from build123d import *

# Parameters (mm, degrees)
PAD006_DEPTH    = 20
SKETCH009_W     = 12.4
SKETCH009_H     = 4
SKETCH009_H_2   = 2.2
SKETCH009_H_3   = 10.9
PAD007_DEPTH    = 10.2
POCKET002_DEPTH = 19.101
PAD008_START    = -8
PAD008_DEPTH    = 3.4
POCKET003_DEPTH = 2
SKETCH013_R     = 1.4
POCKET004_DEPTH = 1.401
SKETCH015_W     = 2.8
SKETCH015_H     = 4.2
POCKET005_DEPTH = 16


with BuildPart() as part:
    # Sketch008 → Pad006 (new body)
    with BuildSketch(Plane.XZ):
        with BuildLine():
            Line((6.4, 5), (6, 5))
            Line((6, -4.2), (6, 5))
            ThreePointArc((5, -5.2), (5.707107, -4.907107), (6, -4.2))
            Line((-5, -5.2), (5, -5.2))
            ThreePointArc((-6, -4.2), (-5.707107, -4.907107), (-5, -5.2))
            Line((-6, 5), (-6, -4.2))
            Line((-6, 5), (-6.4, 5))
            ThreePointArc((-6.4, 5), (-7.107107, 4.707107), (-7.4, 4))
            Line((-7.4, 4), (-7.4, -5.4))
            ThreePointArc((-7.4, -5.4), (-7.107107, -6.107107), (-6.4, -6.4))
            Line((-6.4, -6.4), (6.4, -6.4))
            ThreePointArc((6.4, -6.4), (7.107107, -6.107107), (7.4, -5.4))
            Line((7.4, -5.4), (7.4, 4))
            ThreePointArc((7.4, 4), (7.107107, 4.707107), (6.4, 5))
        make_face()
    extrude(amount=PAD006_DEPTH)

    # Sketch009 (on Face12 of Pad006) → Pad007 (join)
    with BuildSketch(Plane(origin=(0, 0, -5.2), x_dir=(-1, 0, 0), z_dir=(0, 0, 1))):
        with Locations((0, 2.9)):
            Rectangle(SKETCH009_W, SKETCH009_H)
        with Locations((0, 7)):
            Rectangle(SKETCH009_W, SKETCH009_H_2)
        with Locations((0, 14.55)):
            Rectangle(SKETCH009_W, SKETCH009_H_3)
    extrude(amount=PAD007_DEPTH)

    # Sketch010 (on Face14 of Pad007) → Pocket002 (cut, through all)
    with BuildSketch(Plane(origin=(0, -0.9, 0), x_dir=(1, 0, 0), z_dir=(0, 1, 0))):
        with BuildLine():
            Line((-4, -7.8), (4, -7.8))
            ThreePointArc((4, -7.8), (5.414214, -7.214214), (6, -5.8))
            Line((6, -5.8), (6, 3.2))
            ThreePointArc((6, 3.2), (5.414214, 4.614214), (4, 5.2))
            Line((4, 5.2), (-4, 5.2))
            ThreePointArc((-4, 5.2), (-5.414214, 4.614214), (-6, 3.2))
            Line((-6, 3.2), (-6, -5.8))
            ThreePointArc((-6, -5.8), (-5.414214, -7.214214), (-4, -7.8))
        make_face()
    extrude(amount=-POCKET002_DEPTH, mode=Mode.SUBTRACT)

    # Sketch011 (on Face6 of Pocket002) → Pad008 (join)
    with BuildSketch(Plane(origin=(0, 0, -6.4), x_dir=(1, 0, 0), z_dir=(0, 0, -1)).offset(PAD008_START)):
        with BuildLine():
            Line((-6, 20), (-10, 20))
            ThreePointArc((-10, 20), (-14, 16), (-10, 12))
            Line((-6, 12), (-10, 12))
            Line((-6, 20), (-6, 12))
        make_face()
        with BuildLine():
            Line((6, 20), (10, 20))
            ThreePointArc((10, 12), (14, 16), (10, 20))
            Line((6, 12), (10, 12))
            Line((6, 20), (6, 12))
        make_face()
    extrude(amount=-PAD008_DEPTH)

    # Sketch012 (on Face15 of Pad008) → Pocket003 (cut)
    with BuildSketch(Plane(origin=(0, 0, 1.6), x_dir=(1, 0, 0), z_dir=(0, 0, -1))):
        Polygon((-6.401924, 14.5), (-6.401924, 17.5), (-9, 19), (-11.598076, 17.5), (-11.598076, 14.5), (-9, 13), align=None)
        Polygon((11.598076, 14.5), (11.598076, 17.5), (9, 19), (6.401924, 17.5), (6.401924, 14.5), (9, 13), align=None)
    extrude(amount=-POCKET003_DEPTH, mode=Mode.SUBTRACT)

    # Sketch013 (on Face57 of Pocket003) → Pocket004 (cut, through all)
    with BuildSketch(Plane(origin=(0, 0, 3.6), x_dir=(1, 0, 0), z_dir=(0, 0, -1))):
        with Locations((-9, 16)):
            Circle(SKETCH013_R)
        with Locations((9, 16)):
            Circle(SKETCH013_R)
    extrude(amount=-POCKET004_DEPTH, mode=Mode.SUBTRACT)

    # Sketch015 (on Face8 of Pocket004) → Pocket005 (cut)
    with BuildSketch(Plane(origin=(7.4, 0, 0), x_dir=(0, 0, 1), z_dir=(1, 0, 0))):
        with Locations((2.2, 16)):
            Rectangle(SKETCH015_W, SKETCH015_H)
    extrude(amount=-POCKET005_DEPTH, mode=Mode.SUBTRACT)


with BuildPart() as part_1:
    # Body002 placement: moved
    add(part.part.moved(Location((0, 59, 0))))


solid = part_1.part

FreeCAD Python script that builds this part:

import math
import FreeCAD as App
import Part
import Sketcher
Q = App.Units.Quantity

doc = App.newDocument("Part")
body = doc.addObject("PartDesign::Body", "Body")

sketch1 = body.newObject("Sketcher::SketchObject", "Sketch")
sketch1.AttachmentSupport = (doc.getObject("XZ_Plane"), [""])
sketch1.MapMode = "FlatFace"
sketch1.addGeometry(Part.LineSegment(App.Vector(6.4, 5, 0), App.Vector(6, 5, 0)), False)
sketch1.addGeometry(Part.LineSegment(App.Vector(6, 5, 0), App.Vector(6, -4.2, 0)), False)
sketch1.addGeometry(Part.ArcOfCircle(Part.Circle(App.Vector(5.000001, -4.200001, 0), App.Vector(0, 0, 1), 0.999999), math.radians(-90.000043), math.radians(0.000043)), False)
sketch1.addGeometry(Part.LineSegment(App.Vector(5, -5.2, 0), App.Vector(-5, -5.2, 0)), False)
sketch1.addGeometry(Part.ArcOfCircle(Part.Circle(App.Vector(-5.000001, -4.200001, 0), App.Vector(0, 0, 1), 0.999999), math.radians(179.999957), math.radians(270.000043)), False)
sketch1.addGeometry(Part.LineSegment(App.Vector(-6, -4.2, 0), App.Vector(-6, 5, 0)), False)
sketch1.addGeometry(Part.LineSegment(App.Vector(-6, 5, 0), App.Vector(-6.4, 5, 0)), False)
sketch1.addGeometry(Part.ArcOfCircle(Part.Circle(App.Vector(-6.400001, 4.000001, 0), App.Vector(0, 0, 1), 0.999999), math.radians(89.999957), math.radians(180.000043)), False)
sketch1.addGeometry(Part.LineSegment(App.Vector(-7.4, 4, 0), App.Vector(-7.4, -5.4, 0)), False)
sketch1.addGeometry(Part.ArcOfCircle(Part.Circle(App.Vector(-6.400001, -5.400001, 0), App.Vector(0, 0, 1), 0.999999), math.radians(179.999957), math.radians(270.000043)), False)
sketch1.addGeometry(Part.LineSegment(App.Vector(-6.4, -6.4, 0), App.Vector(6.4, -6.4, 0)), False)
sketch1.addGeometry(Part.ArcOfCircle(Part.Circle(App.Vector(6.400001, -5.400001, 0), App.Vector(0, 0, 1), 0.999999), math.radians(-90.000043), math.radians(0.000043)), False)
sketch1.addGeometry(Part.LineSegment(App.Vector(7.4, -5.4, 0), App.Vector(7.4, 4, 0)), False)
sketch1.addGeometry(Part.ArcOfCircle(Part.Circle(App.Vector(6.400001, 4.000001, 0), App.Vector(0, 0, 1), 0.999999), math.radians(-0.000043), math.radians(90.000043)), False)
sketch1.addConstraint(Sketcher.Constraint("Coincident", 0, 2, 1, 1))
sketch1.addConstraint(Sketcher.Constraint("Tangent", 1, 2, 2, 2))
sketch1.addConstraint(Sketcher.Constraint("Tangent", 2, 1, 3, 1))
sketch1.addConstraint(Sketcher.Constraint("Tangent", 3, 2, 4, 2))
sketch1.addConstraint(Sketcher.Constraint("Tangent", 4, 1, 5, 1))
sketch1.addConstraint(Sketcher.Constraint("Coincident", 5, 2, 6, 1))
sketch1.addConstraint(Sketcher.Constraint("Tangent", 6, 2, 7, 1))
sketch1.addConstraint(Sketcher.Constraint("Tangent", 7, 2, 8, 1))
sketch1.addConstraint(Sketcher.Constraint("Tangent", 8, 2, 9, 1))
sketch1.addConstraint(Sketcher.Constraint("Tangent", 9, 2, 10, 1))
sketch1.addConstraint(Sketcher.Constraint("Tangent", 10, 2, 11, 1))
sketch1.addConstraint(Sketcher.Constraint("Tangent", 11, 2, 12, 1))
sketch1.addConstraint(Sketcher.Constraint("Tangent", 12, 2, 13, 1))
sketch1.addConstraint(Sketcher.Constraint("Tangent", 13, 2, 0, 1))
sketch1.addConstraint(Sketcher.Constraint("Horizontal", 0))
sketch1.addConstraint(Sketcher.Constraint("Vertical", 1))
sketch1.addConstraint(Sketcher.Constraint("Horizontal", 3))
sketch1.addConstraint(Sketcher.Constraint("Vertical", 5))
sketch1.addConstraint(Sketcher.Constraint("Horizontal", 6))
sketch1.addConstraint(Sketcher.Constraint("Vertical", 8))
sketch1.addConstraint(Sketcher.Constraint("Horizontal", 10))
sketch1.addConstraint(Sketcher.Constraint("Vertical", 12))
sketch1.addConstraint(Sketcher.Constraint("Equal", 2, 4))
sketch1.addConstraint(Sketcher.Constraint("Equal", 4, 7))
sketch1.addConstraint(Sketcher.Constraint("Equal", 7, 9))
sketch1.addConstraint(Sketcher.Constraint("Equal", 9, 11))
sketch1.addConstraint(Sketcher.Constraint("Equal", 11, 13))
sketch1.addConstraint(Sketcher.Constraint("Symmetric", 7, 3, 13, 3, -2))
sketch1.addConstraint(Sketcher.Constraint("Equal", 0, 6))
sketch1.addConstraint(Sketcher.Constraint("Radius", 2, Q("0.999999 mm")))
sketch1.addConstraint(Sketcher.Constraint("DistanceX", 3, 2, 3, 1, Q("10 mm")))
sketch1.addConstraint(Sketcher.Constraint("DistanceX", 0, 2, 0, 1, Q("0.4 mm")))
sketch1.addConstraint(Sketcher.Constraint("DistanceY", 1, 2, 1, 1, Q("9.2 mm")))
sketch1.addConstraint(Sketcher.Constraint("DistanceY", 8, 2, 8, 1, Q("9.4 mm")))
sketch1.addConstraint(Sketcher.Constraint("DistanceY", -1, 1, 7, 3, Q("4.000001 mm")))
pad1 = body.newObject("PartDesign::Pad", "Pad")
pad1.Profile = sketch1
pad1.Length = 20

sketch2 = body.newObject("Sketcher::SketchObject", "Sketch001")
sketch2.AttachmentSupport = (doc.getObject("XY_Plane"), [""])
sketch2.MapMode = "FlatFace"
sketch2.AttachmentOffset = App.Placement(App.Vector(0, 0, -5.2), App.Rotation())
sketch2.addGeometry(Part.LineSegment(App.Vector(6.2, -4.9, 0), App.Vector(6.2, -0.9, 0)), False)
sketch2.addGeometry(Part.LineSegment(App.Vector(6.2, -0.9, 0), App.Vector(-6.2, -0.9, 0)), False)
sketch2.addGeometry(Part.LineSegment(App.Vector(-6.2, -0.9, 0), App.Vector(-6.2, -4.9, 0)), False)
sketch2.addGeometry(Part.LineSegment(App.Vector(-6.2, -4.9, 0), App.Vector(6.2, -4.9, 0)), False)
sketch2.addGeometry(Part.LineSegment(App.Vector(6.2, -8.1, 0), App.Vector(6.2, -5.9, 0)), False)
sketch2.addGeometry(Part.LineSegment(App.Vector(6.2, -5.9, 0), App.Vector(-6.2, -5.9, 0)), False)
sketch2.addGeometry(Part.LineSegment(App.Vector(-6.2, -5.9, 0), App.Vector(-6.2, -8.1, 0)), False)
sketch2.addGeometry(Part.LineSegment(App.Vector(-6.2, -8.1, 0), App.Vector(6.2, -8.1, 0)), False)
sketch2.addGeometry(Part.LineSegment(App.Vector(6.2, -20, 0), App.Vector(6.2, -9.1, 0)), False)
sketch2.addGeometry(Part.LineSegment(App.Vector(6.2, -9.1, 0), App.Vector(-6.2, -9.1, 0)), False)
sketch2.addGeometry(Part.LineSegment(App.Vector(-6.2, -9.1, 0), App.Vector(-6.2, -20, 0)), False)
sketch2.addGeometry(Part.LineSegment(App.Vector(-6.2, -20, 0), App.Vector(6.2, -20, 0)), False)
sketch2.addConstraint(Sketcher.Constraint("Coincident", 0, 2, 1, 1))
sketch2.addConstraint(Sketcher.Constraint("Coincident", 1, 2, 2, 1))
sketch2.addConstraint(Sketcher.Constraint("Coincident", 2, 2, 3, 1))
sketch2.addConstraint(Sketcher.Constraint("Coincident", 3, 2, 0, 1))
sketch2.addConstraint(Sketcher.Constraint("Coincident", 4, 2, 5, 1))
sketch2.addConstraint(Sketcher.Constraint("Coincident", 5, 2, 6, 1))
sketch2.addConstraint(Sketcher.Constraint("Coincident", 6, 2, 7, 1))
sketch2.addConstraint(Sketcher.Constraint("Coincident", 7, 2, 4, 1))
sketch2.addConstraint(Sketcher.Constraint("Coincident", 8, 2, 9, 1))
sketch2.addConstraint(Sketcher.Constraint("Coincident", 9, 2, 10, 1))
sketch2.addConstraint(Sketcher.Constraint("Coincident", 10, 2, 11, 1))
sketch2.addConstraint(Sketcher.Constraint("Coincident", 11, 2, 8, 1))
sketch2.addConstraint(Sketcher.Constraint("Vertical", 0))
sketch2.addConstraint(Sketcher.Constraint("Horizontal", 1))
sketch2.addConstraint(Sketcher.Constraint("Vertical", 2))
sketch2.addConstraint(Sketcher.Constraint("Horizontal", 3))
sketch2.addConstraint(Sketcher.Constraint("Vertical", 4))
sketch2.addConstraint(Sketcher.Constraint("Horizontal", 5))
sketch2.addConstraint(Sketcher.Constraint("Vertical", 6))
sketch2.addConstraint(Sketcher.Constraint("Horizontal", 7))
sketch2.addConstraint(Sketcher.Constraint("Vertical", 8))
sketch2.addConstraint(Sketcher.Constraint("Horizontal", 9))
sketch2.addConstraint(Sketcher.Constraint("Vertical", 10))
sketch2.addConstraint(Sketcher.Constraint("Horizontal", 11))
sketch2.addConstraint(Sketcher.Constraint("Vertical", 3, 2, 4, 2))
sketch2.addConstraint(Sketcher.Constraint("Vertical", 2, 2, 5, 2))
sketch2.addConstraint(Sketcher.Constraint("Vertical", 7, 2, 8, 2))
sketch2.addConstraint(Sketcher.Constraint("Vertical", 6, 2, 9, 2))
sketch2.addConstraint(Sketcher.Constraint("DistanceY", 0, 1, 0, 2, Q("4 mm")))
sketch2.addConstraint(Sketcher.Constraint("DistanceX", 1, 2, 1, 1, Q("12.4 mm")))
sketch2.addConstraint(Sketcher.Constraint("DistanceY", 4, 1, 4, 2, Q("2.2 mm")))
sketch2.addConstraint(Sketcher.Constraint("DistanceY", 8, 1, 8, 2, Q("10.9 mm")))
sketch2.addConstraint(Sketcher.Constraint("DistanceY", 10, 2, -1, 1, Q("20 mm")))
sketch2.addConstraint(Sketcher.Constraint("DistanceY", 4, 2, 3, 2, Q("1 mm")))
sketch2.addConstraint(Sketcher.Constraint("DistanceY", 8, 2, 7, 2, Q("1 mm")))
sketch2.addConstraint(Sketcher.Constraint("DistanceX", -1, 1, 0, 2, Q("6.2 mm")))
pad2 = body.newObject("PartDesign::Pad", "Pad001")
pad2.Profile = sketch2
pad2.Length = 10.2

sketch3 = body.newObject("Sketcher::SketchObject", "Sketch002")
sketch3.AttachmentSupport = (doc.getObject("XZ_Plane"), [""])
sketch3.MapMode = "FlatFace"
sketch3.AttachmentOffset = App.Placement(App.Vector(0, 0, 0.9), App.Rotation())
sketch3.addGeometry(Part.LineSegment(App.Vector(-4, 7.8, 0), App.Vector(4, 7.8, 0)), False)
sketch3.addGeometry(Part.ArcOfCircle(Part.Circle(App.Vector(4.000001, 5.800001, 0), App.Vector(0, 0, 1), 1.999999), math.radians(-0.000043), math.radians(90.000043)), False)
sketch3.addGeometry(Part.LineSegment(App.Vector(6, 5.8, 0), App.Vector(6, -3.2, 0)), False)
sketch3.addGeometry(Part.ArcOfCircle(Part.Circle(App.Vector(4.000001, -3.200001, 0), App.Vector(0, 0, 1), 1.999999), math.radians(-90.000043), math.radians(0.000043)), False)
sketch3.addGeometry(Part.LineSegment(App.Vector(4, -5.2, 0), App.Vector(-4, -5.2, 0)), False)
sketch3.addGeometry(Part.ArcOfCircle(Part.Circle(App.Vector(-4.000001, -3.200001, 0), App.Vector(0, 0, 1), 1.999999), math.radians(179.999957), math.radians(270.000043)), False)
sketch3.addGeometry(Part.LineSegment(App.Vector(-6, -3.2, 0), App.Vector(-6, 5.8, 0)), False)
sketch3.addGeometry(Part.ArcOfCircle(Part.Circle(App.Vector(-4.000001, 5.800001, 0), App.Vector(0, 0, 1), 1.999999), math.radians(89.999957), math.radians(180.000043)), False)
sketch3.addConstraint(Sketcher.Constraint("Tangent", 0, 2, 1, 2))
sketch3.addConstraint(Sketcher.Constraint("Tangent", 1, 1, 2, 1))
sketch3.addConstraint(Sketcher.Constraint("Tangent", 2, 2, 3, 2))
sketch3.addConstraint(Sketcher.Constraint("Tangent", 3, 1, 4, 1))
sketch3.addConstraint(Sketcher.Constraint("Tangent", 4, 2, 5, 2))
sketch3.addConstraint(Sketcher.Constraint("Tangent", 5, 1, 6, 1))
sketch3.addConstraint(Sketcher.Constraint("Tangent", 6, 2, 7, 2))
sketch3.addConstraint(Sketcher.Constraint("Tangent", 7, 1, 0, 1))
sketch3.addConstraint(Sketcher.Constraint("Horizontal", 0))
sketch3.addConstraint(Sketcher.Constraint("Vertical", 2))
sketch3.addConstraint(Sketcher.Constraint("Horizontal", 4))
sketch3.addConstraint(Sketcher.Constraint("Vertical", 6))
sketch3.addConstraint(Sketcher.Constraint("Equal", 1, 3))
sketch3.addConstraint(Sketcher.Constraint("Equal", 3, 5))
sketch3.addConstraint(Sketcher.Constraint("Equal", 5, 7))
sketch3.addConstraint(Sketcher.Constraint("Radius", 1, Q("1.999999 mm")))
sketch3.addConstraint(Sketcher.Constraint("DistanceX", 0, 1, 0, 2, Q("8 mm")))
sketch3.addConstraint(Sketcher.Constraint("DistanceY", 2, 2, 2, 1, Q("9 mm")))
sketch3.addConstraint(Sketcher.Constraint("DistanceX", -1, 1, 1, 3, Q("4.000001 mm")))
sketch3.addConstraint(Sketcher.Constraint("DistanceY", -1, 1, 1, 3, Q("5.800001 mm")))
pocket1 = body.newObject("PartDesign::Pocket", "Pocket")
pocket1.Profile = sketch3
pocket1.Type = "ThroughAll"
pocket1.Reversed = True

sketch4 = body.newObject("Sketcher::SketchObject", "Sketch003")
sketch4.AttachmentSupport = (doc.getObject("XY_Plane"), [""])
sketch4.MapMode = "FlatFace"
sketch4.AttachmentOffset = App.Placement(App.Vector(0, 0, 1.6), App.Rotation())
sketch4.addGeometry(Part.LineSegment(App.Vector(-6, -20, 0), App.Vector(-10, -20, 0)), False)
sketch4.addGeometry(Part.ArcOfCircle(Part.Circle(App.Vector(-10, -16, 0), App.Vector(0, 0, 1), 4), math.radians(90), math.radians(270)), False)
sketch4.addGeometry(Part.LineSegment(App.Vector(-10, -12, 0), App.Vector(-6, -12, 0)), False)
sketch4.addGeometry(Part.LineSegment(App.Vector(-6, -12, 0), App.Vector(-6, -20, 0)), False)
sketch4.addGeometry(Part.LineSegment(App.Vector(10, -20, 0), App.Vector(6, -20, 0)), False)
sketch4.addGeometry(Part.LineSegment(App.Vector(6, -20, 0), App.Vector(6, -12, 0)), False)
sketch4.addGeometry(Part.LineSegment(App.Vector(6, -12, 0), App.Vector(10, -12, 0)), False)
sketch4.addGeometry(Part.ArcOfCircle(Part.Circle(App.Vector(10, -16, 0), App.Vector(0, 0, 1), 4), math.radians(-90), math.radians(90)), False)
sketch4.addConstraint(Sketcher.Constraint("Tangent", 0, 2, 1, 2))
sketch4.addConstraint(Sketcher.Constraint("Tangent", 1, 1, 2, 1))
sketch4.addConstraint(Sketcher.Constraint("Coincident", 2, 2, 3, 1))
sketch4.addConstraint(Sketcher.Constraint("Coincident", 3, 2, 0, 1))
sketch4.addConstraint(Sketcher.Constraint("Coincident", 4, 2, 5, 1))
sketch4.addConstraint(Sketcher.Constraint("Coincident", 5, 2, 6, 1))
sketch4.addConstraint(Sketcher.Constraint("Tangent", 6, 2, 7, 2))
sketch4.addConstraint(Sketcher.Constraint("Tangent", 7, 1, 4, 1))
sketch4.addConstraint(Sketcher.Constraint("Horizontal", 0))
sketch4.addConstraint(Sketcher.Constraint("Horizontal", 2))
sketch4.addConstraint(Sketcher.Constraint("Vertical", 3))
sketch4.addConstraint(Sketcher.Constraint("Horizontal", 4))
sketch4.addConstraint(Sketcher.Constraint("Vertical", 5))
sketch4.addConstraint(Sketcher.Constraint("Horizontal", 6))
sketch4.addConstraint(Sketcher.Constraint("Equal", 1, 7))
sketch4.addConstraint(Sketcher.Constraint("Symmetric", 1, 3, 7, 3, -2))
sketch4.addConstraint(Sketcher.Constraint("Equal", 2, 4))
sketch4.addConstraint(Sketcher.Constraint("Radius", 1, Q("4 mm")))
sketch4.addConstraint(Sketcher.Constraint("DistanceX", 0, 2, 0, 1, Q("4 mm")))
sketch4.addConstraint(Sketcher.Constraint("DistanceX", 1, 3, -1, 1, Q("10 mm")))
sketch4.addConstraint(Sketcher.Constraint("DistanceY", 1, 3, -1, 1, Q("16 mm")))
pad3 = body.newObject("PartDesign::Pad", "Pad002")
pad3.Profile = sketch4
pad3.Length = 3.4

sketch5 = body.newObject("Sketcher::SketchObject", "Sketch004")
sketch5.AttachmentSupport = (doc.getObject("XY_Plane"), [""])
sketch5.MapMode = "FlatFace"
sketch5.AttachmentOffset = App.Placement(App.Vector(0, 0, 1.6), App.Rotation())
sketch5.addGeometry(Part.LineSegment(App.Vector(-6.401924, -14.5, 0), App.Vector(-6.401924, -17.5, 0)), False)
sketch5.addGeometry(Part.LineSegment(App.Vector(-6.401924, -17.5, 0), App.Vector(-9, -19, 0)), False)
sketch5.addGeometry(Part.LineSegment(App.Vector(-9, -19, 0), App.Vector(-11.598076, -17.5, 0)), False)
sketch5.addGeometry(Part.LineSegment(App.Vector(-11.598076, -17.5, 0), App.Vector(-11.598076, -14.5, 0)), False)
sketch5.addGeometry(Part.LineSegment(App.Vector(-11.598076, -14.5, 0), App.Vector(-9, -13, 0)), False)
sketch5.addGeometry(Part.LineSegment(App.Vector(-9, -13, 0), App.Vector(-6.401924, -14.5, 0)), False)
sketch5.addGeometry(Part.LineSegment(App.Vector(11.598076, -14.5, 0), App.Vector(11.598076, -17.5, 0)), False)
sketch5.addGeometry(Part.LineSegment(App.Vector(11.598076, -17.5, 0), App.Vector(9, -19, 0)), False)
sketch5.addGeometry(Part.LineSegment(App.Vector(9, -19, 0), App.Vector(6.401924, -17.5, 0)), False)
sketch5.addGeometry(Part.LineSegment(App.Vector(6.401924, -17.5, 0), App.Vector(6.401924, -14.5, 0)), False)
sketch5.addGeometry(Part.LineSegment(App.Vector(6.401924, -14.5, 0), App.Vector(9, -13, 0)), False)
sketch5.addGeometry(Part.LineSegment(App.Vector(9, -13, 0), App.Vector(11.598076, -14.5, 0)), False)
sketch5.addConstraint(Sketcher.Constraint("Coincident", 0, 2, 1, 1))
sketch5.addConstraint(Sketcher.Constraint("Coincident", 1, 2, 2, 1))
sketch5.addConstraint(Sketcher.Constraint("Coincident", 2, 2, 3, 1))
sketch5.addConstraint(Sketcher.Constraint("Coincident", 3, 2, 4, 1))
sketch5.addConstraint(Sketcher.Constraint("Coincident", 4, 2, 5, 1))
sketch5.addConstraint(Sketcher.Constraint("Coincident", 5, 2, 0, 1))
sketch5.addConstraint(Sketcher.Constraint("Coincident", 6, 2, 7, 1))
sketch5.addConstraint(Sketcher.Constraint("Coincident", 7, 2, 8, 1))
sketch5.addConstraint(Sketcher.Constraint("Coincident", 8, 2, 9, 1))
sketch5.addConstraint(Sketcher.Constraint("Coincident", 9, 2, 10, 1))
sketch5.addConstraint(Sketcher.Constraint("Coincident", 10, 2, 11, 1))
sketch5.addConstraint(Sketcher.Constraint("Coincident", 11, 2, 6, 1))
sketch5.addConstraint(Sketcher.Constraint("Vertical", 0))
sketch5.addConstraint(Sketcher.Constraint("Vertical", 3))
sketch5.addConstraint(Sketcher.Constraint("Vertical", 6))
sketch5.addConstraint(Sketcher.Constraint("Vertical", 9))
sketch5.addConstraint(Sketcher.Constraint("Symmetric", 2, 2, 6, 2, -2))
sketch5.addConstraint(Sketcher.Constraint("Symmetric", 1, 2, 7, 2, -2))
sketch5.addConstraint(Sketcher.Constraint("Symmetric", 0, 2, 8, 2, -2))
sketch5.addConstraint(Sketcher.Constraint("Symmetric", 4, 2, 10, 2, -2))
sketch5.addConstraint(Sketcher.Constraint("Parallel", 1, 4))
sketch5.addConstraint(Sketcher.Constraint("Parallel", 2, 5))
sketch5.addConstraint(Sketcher.Constraint("Parallel", 4, 7))
sketch5.addConstraint(Sketcher.Constraint("Parallel", 7, 10))
sketch5.addConstraint(Sketcher.Constraint("Parallel", 8, 11))
sketch5.addConstraint(Sketcher.Constraint("Horizontal", 0, 2, 2, 2))
sketch5.addConstraint(Sketcher.Constraint("Horizontal", 3, 2, 5, 2))
sketch5.addConstraint(Sketcher.Constraint("DistanceY", 0, 2, 0, 1, Q("3 mm")))
sketch5.addConstraint(Sketcher.Constraint("Angle", 1, Q("-149.999998 deg")))
sketch5.addConstraint(Sketcher.Constraint("Distance", 1, Q("3 mm")))
sketch5.addConstraint(Sketcher.Constraint("DistanceX", 1, 2, -1, 1, Q("9 mm")))
sketch5.addConstraint(Sketcher.Constraint("DistanceY", 1, 2, -1, 1, Q("19 mm")))
pocket2 = body.newObject("PartDesign::Pocket", "Pocket001")
pocket2.Profile = sketch5
pocket2.Length = 2
pocket2.Reversed = True

sketch6 = body.newObject("Sketcher::SketchObject", "Sketch005")
sketch6.AttachmentSupport = (doc.getObject("XY_Plane"), [""])
sketch6.MapMode = "FlatFace"
sketch6.AttachmentOffset = App.Placement(App.Vector(0, 0, 3.6), App.Rotation())
sketch6.addGeometry(Part.Circle(App.Vector(-9, -16, 0), App.Vector(0, 0, 1), 1.4), False)
sketch6.addGeometry(Part.Circle(App.Vector(9, -16, 0), App.Vector(0, 0, 1), 1.4), False)
sketch6.addConstraint(Sketcher.Constraint("Equal", 0, 1))
sketch6.addConstraint(Sketcher.Constraint("Symmetric", 0, 3, 1, 3, -2))
sketch6.addConstraint(Sketcher.Constraint("Diameter", 0, Q("2.8 mm")))
sketch6.addConstraint(Sketcher.Constraint("DistanceX", 0, 3, -1, 1, Q("9 mm")))
sketch6.addConstraint(Sketcher.Constraint("DistanceY", 0, 3, -1, 1, Q("16 mm")))
pocket3 = body.newObject("PartDesign::Pocket", "Pocket002")
pocket3.Profile = sketch6
pocket3.Type = "ThroughAll"
pocket3.Reversed = True

sketch7 = body.newObject("Sketcher::SketchObject", "Sketch006")
sketch7.AttachmentSupport = (doc.getObject("YZ_Plane"), [""])
sketch7.MapMode = "FlatFace"
sketch7.AttachmentOffset = App.Placement(App.Vector(0, 0, 7.4), App.Rotation())
sketch7.addGeometry(Part.LineSegment(App.Vector(-18.1, 0.8, 0), App.Vector(-13.9, 0.8, 0)), False)
sketch7.addGeometry(Part.LineSegment(App.Vector(-13.9, 0.8, 0), App.Vector(-13.9, 3.6, 0)), False)
sketch7.addGeometry(Part.LineSegment(App.Vector(-13.9, 3.6, 0), App.Vector(-18.1, 3.6, 0)), False)
sketch7.addGeometry(Part.LineSegment(App.Vector(-18.1, 3.6, 0), App.Vector(-18.1, 0.8, 0)), False)
sketch7.addConstraint(Sketcher.Constraint("Coincident", 0, 2, 1, 1))
sketch7.addConstraint(Sketcher.Constraint("Coincident", 1, 2, 2, 1))
sketch7.addConstraint(Sketcher.Constraint("Coincident", 2, 2, 3, 1))
sketch7.addConstraint(Sketcher.Constraint("Coincident", 3, 2, 0, 1))
sketch7.addConstraint(Sketcher.Constraint("Horizontal", 0))
sketch7.addConstraint(Sketcher.Constraint("Vertical", 1))
sketch7.addConstraint(Sketcher.Constraint("Horizontal", 2))
sketch7.addConstraint(Sketcher.Constraint("Vertical", 3))
sketch7.addConstraint(Sketcher.Constraint("DistanceX", 0, 1, 0, 2, Q("4.2 mm")))
sketch7.addConstraint(Sketcher.Constraint("DistanceY", 1, 1, 1, 2, Q("2.8 mm")))
sketch7.addConstraint(Sketcher.Constraint("DistanceX", 0, 2, -1, 1, Q("13.9 mm")))
sketch7.addConstraint(Sketcher.Constraint("DistanceY", -1, 1, 0, 2, Q("0.8 mm")))
pocket4 = body.newObject("PartDesign::Pocket", "Pocket003")
pocket4.Profile = sketch7
pocket4.Length = 16
body2 = doc.addObject("PartDesign::Body", "Body001")
doc.recompute()

body.Placement = App.Placement(App.Vector(0, 59, 0), App.Rotation(App.Vector(0, 0, 1), 0))
boolean = body2.newObject("PartDesign::Boolean", "Boolean")
boolean.Type = "Fuse"
boolean.addObjects([body])

doc.recompute()
